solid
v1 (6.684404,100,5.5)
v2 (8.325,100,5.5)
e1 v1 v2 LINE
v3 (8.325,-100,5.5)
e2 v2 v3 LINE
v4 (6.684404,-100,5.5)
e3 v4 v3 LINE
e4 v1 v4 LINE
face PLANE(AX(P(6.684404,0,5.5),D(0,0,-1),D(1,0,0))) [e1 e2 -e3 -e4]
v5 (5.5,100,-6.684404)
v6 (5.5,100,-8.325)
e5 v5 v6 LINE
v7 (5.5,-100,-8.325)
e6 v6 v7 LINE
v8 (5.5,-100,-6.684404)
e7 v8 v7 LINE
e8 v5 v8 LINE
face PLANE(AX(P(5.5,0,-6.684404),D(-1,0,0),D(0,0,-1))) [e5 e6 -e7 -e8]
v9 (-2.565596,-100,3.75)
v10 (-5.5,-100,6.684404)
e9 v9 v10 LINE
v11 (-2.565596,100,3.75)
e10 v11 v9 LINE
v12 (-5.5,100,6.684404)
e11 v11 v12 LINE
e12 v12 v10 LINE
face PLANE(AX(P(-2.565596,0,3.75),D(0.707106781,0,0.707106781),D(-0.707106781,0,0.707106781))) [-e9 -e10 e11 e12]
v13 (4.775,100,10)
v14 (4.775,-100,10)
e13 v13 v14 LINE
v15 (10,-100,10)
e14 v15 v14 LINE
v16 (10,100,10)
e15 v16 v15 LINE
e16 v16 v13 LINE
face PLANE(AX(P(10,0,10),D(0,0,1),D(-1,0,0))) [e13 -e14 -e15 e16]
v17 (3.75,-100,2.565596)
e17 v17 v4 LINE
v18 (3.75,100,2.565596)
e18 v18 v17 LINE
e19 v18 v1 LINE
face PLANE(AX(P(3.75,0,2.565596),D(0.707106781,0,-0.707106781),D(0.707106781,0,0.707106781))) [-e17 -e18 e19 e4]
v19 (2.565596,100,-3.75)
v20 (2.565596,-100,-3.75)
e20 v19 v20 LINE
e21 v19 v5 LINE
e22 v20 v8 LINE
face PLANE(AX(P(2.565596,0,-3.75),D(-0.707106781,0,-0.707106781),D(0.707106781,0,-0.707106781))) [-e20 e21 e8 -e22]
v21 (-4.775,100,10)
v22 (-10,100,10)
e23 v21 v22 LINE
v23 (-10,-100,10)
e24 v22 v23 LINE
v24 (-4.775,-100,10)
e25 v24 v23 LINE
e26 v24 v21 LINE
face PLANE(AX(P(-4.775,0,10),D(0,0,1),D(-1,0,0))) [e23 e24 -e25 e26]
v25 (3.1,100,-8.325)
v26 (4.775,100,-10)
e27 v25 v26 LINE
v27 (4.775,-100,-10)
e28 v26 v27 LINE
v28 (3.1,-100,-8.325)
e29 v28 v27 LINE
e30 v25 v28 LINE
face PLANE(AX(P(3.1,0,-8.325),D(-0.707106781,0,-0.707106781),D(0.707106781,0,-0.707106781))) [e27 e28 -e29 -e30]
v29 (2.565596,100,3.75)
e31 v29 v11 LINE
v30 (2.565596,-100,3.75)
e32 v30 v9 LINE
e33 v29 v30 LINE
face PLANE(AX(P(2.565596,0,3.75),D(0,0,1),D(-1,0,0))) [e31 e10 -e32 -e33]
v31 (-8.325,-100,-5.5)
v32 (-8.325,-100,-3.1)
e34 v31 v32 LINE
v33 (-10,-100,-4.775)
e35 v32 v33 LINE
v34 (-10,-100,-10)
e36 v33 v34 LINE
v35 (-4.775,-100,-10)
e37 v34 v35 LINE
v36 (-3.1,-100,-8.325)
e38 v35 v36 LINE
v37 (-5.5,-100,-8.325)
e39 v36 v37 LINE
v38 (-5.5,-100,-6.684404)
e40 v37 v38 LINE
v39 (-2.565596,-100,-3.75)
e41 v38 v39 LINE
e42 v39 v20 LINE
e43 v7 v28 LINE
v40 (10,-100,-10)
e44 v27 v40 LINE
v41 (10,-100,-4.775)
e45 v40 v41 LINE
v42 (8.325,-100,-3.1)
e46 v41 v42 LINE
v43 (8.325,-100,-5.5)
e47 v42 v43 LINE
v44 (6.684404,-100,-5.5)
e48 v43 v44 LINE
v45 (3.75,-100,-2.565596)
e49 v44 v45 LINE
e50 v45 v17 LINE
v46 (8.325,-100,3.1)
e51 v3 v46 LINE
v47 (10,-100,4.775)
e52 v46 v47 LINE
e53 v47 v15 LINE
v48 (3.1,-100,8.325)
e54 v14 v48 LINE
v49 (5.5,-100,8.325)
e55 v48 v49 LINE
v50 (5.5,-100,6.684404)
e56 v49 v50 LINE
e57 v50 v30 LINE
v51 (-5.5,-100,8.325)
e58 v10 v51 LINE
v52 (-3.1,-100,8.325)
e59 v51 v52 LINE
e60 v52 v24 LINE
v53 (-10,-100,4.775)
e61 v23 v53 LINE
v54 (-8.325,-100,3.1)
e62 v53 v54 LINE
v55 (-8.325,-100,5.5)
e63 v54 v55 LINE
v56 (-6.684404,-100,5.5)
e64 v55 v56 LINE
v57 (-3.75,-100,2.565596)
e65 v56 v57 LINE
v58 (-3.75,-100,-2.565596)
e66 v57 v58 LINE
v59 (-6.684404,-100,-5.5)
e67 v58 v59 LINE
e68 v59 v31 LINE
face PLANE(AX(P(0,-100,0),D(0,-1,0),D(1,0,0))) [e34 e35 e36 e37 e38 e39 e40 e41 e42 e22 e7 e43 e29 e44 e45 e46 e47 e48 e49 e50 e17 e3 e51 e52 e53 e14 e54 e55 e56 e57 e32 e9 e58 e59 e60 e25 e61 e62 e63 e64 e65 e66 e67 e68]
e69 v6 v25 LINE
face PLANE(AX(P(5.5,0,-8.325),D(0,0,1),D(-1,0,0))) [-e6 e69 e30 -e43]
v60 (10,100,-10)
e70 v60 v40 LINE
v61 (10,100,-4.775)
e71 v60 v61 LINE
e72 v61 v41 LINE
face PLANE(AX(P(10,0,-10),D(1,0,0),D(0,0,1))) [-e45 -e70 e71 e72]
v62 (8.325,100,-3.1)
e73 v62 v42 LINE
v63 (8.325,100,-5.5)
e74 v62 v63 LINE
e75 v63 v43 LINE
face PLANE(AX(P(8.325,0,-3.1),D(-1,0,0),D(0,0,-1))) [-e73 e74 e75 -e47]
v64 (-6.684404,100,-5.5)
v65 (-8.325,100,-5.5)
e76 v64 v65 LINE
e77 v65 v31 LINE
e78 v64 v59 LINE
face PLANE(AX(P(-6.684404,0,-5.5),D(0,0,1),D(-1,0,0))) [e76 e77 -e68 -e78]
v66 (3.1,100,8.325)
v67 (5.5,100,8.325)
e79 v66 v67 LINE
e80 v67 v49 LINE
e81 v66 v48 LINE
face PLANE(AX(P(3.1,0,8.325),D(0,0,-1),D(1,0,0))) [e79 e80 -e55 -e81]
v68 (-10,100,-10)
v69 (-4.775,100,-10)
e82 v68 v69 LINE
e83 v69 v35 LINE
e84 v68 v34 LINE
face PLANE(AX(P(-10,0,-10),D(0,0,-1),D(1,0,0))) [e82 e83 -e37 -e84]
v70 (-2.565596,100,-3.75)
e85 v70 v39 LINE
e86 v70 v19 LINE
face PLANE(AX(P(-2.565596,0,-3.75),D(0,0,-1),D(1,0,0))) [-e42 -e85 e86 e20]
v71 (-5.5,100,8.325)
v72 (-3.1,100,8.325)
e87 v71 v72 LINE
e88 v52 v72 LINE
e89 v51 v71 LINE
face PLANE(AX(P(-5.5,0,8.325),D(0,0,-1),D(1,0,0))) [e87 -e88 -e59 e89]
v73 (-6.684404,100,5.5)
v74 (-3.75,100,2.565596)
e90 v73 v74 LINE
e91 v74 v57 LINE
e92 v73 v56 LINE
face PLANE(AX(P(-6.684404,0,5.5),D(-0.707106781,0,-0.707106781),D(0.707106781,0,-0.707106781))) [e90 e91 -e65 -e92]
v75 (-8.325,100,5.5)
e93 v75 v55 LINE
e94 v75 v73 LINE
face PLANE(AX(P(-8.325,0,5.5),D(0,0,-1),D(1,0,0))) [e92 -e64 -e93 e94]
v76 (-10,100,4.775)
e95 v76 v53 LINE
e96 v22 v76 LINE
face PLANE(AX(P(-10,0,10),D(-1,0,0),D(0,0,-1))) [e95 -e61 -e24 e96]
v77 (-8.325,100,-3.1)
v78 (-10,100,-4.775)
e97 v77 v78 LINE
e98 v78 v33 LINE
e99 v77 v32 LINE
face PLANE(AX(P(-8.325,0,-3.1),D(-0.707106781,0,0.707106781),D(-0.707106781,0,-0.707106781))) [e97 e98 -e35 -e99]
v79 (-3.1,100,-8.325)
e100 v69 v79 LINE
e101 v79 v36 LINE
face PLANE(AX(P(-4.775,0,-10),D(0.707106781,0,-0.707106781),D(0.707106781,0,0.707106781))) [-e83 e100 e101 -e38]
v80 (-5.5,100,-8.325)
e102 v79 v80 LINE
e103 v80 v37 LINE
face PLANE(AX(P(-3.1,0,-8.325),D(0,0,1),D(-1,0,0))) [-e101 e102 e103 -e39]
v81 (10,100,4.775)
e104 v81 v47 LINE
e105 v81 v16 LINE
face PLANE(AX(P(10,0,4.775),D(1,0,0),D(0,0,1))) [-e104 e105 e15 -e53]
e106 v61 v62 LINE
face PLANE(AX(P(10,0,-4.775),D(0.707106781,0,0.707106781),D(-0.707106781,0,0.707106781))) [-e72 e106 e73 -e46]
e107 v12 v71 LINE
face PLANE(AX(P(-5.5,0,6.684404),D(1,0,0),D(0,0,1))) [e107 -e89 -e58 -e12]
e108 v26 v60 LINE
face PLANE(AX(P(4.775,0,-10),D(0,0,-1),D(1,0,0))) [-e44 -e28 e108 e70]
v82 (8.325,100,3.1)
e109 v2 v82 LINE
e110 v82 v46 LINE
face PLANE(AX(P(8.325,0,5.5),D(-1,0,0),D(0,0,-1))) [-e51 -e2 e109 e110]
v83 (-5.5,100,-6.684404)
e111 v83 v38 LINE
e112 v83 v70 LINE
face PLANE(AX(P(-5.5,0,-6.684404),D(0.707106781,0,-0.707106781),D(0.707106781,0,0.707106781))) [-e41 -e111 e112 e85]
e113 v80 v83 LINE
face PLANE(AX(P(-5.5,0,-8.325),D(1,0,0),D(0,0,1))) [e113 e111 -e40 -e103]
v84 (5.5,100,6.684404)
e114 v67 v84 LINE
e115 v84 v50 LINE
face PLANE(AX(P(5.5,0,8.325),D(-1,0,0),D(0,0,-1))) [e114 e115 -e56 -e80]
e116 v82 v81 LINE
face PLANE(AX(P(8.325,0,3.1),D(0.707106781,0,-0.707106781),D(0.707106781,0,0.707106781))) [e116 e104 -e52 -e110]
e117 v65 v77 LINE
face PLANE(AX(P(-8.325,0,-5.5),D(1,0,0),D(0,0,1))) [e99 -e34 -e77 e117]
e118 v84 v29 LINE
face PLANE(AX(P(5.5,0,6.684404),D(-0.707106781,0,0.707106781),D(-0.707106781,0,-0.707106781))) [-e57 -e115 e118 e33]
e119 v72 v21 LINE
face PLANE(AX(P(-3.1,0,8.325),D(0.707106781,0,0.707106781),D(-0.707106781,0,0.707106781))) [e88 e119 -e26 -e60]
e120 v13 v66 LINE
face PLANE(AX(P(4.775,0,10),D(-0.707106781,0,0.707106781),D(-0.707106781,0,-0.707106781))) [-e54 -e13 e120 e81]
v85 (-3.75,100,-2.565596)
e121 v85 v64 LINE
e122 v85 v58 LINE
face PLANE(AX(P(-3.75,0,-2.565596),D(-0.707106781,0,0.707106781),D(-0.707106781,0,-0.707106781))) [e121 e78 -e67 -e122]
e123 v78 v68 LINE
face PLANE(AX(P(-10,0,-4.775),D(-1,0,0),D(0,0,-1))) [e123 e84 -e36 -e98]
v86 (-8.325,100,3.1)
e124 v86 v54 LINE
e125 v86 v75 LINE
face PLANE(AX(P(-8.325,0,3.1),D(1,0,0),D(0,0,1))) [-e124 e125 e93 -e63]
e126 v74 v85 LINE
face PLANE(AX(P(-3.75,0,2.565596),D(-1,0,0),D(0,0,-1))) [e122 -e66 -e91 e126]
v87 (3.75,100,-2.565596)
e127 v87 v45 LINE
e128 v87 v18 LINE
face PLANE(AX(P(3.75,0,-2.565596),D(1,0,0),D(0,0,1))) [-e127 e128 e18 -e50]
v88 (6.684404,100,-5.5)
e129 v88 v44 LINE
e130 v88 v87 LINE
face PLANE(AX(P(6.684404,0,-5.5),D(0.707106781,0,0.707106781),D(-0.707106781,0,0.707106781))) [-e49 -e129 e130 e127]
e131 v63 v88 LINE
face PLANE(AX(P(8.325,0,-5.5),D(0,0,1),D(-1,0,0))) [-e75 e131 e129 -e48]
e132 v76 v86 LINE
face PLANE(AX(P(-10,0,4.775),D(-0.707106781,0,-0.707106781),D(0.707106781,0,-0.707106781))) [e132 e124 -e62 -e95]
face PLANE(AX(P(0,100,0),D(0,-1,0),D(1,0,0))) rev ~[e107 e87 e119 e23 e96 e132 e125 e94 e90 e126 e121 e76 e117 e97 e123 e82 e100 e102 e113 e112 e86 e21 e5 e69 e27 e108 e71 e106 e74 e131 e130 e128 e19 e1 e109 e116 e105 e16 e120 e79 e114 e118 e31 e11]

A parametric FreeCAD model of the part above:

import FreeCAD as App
import Part
import Sketcher
Q = App.Units.Quantity

doc = App.newDocument("Part")
body = doc.addObject("PartDesign::Body", "Body")

sketch1 = body.newObject("Sketcher::SketchObject", "Sketch")
sketch1.AttachmentSupport = (doc.getObject("XZ_Plane"), [""])
sketch1.MapMode = "FlatFace"
sketch1.addGeometry(Part.LineSegment(App.Vector(-4.775, 10, 0), App.Vector(-10, 10, 0)), False)
sketch1.addGeometry(Part.LineSegment(App.Vector(-10, 10, 0), App.Vector(-10, 4.775, 0)), False)
sketch1.addGeometry(Part.LineSegment(App.Vector(-10, 4.775, 0), App.Vector(-8.325, 3.1, 0)), False)
sketch1.addGeometry(Part.LineSegment(App.Vector(-8.325, 3.1, 0), App.Vector(-8.325, 5.5, 0)), False)
sketch1.addGeometry(Part.LineSegment(App.Vector(-8.325, 5.5, 0), App.Vector(-6.684404, 5.5, 0)), False)
sketch1.addGeometry(Part.LineSegment(App.Vector(-6.684404, 5.5, 0), App.Vector(-3.75, 2.565596, 0)), False)
sketch1.addGeometry(Part.LineSegment(App.Vector(-3.75, 2.565596, 0), App.Vector(-3.75, -2.565596, 0)), False)
sketch1.addGeometry(Part.LineSegment(App.Vector(-3.75, -2.565596, 0), App.Vector(-6.684404, -5.5, 0)), False)
sketch1.addGeometry(Part.LineSegment(App.Vector(-6.684404, -5.5, 0), App.Vector(-8.325, -5.5, 0)), False)
sketch1.addGeometry(Part.LineSegment(App.Vector(-8.325, -5.5, 0), App.Vector(-8.325, -3.1, 0)), False)
sketch1.addGeometry(Part.LineSegment(App.Vector(-8.325, -3.1, 0), App.Vector(-10, -4.775, 0)), False)
sketch1.addGeometry(Part.LineSegment(App.Vector(-10, -4.775, 0), App.Vector(-10, -10, 0)), False)
sketch1.addGeometry(Part.LineSegment(App.Vector(-10, -10, 0), App.Vector(-4.775, -10, 0)), False)
sketch1.addGeometry(Part.LineSegment(App.Vector(-4.775, -10, 0), App.Vector(-3.1, -8.325, 0)), False)
sketch1.addGeometry(Part.LineSegment(App.Vector(-3.1, -8.325, 0), App.Vector(-5.5, -8.325, 0)), False)
sketch1.addGeometry(Part.LineSegment(App.Vector(-5.5, -8.325, 0), App.Vector(-5.5, -6.684404, 0)), False)
sketch1.addGeometry(Part.LineSegment(App.Vector(-5.5, -6.684404, 0), App.Vector(-2.565596, -3.75, 0)), False)
sketch1.addGeometry(Part.LineSegment(App.Vector(-2.565596, -3.75, 0), App.Vector(2.565596, -3.75, 0)), False)
sketch1.addGeometry(Part.LineSegment(App.Vector(2.565596, -3.75, 0), App.Vector(5.5, -6.684404, 0)), False)
sketch1.addGeometry(Part.LineSegment(App.Vector(5.5, -6.684404, 0), App.Vector(5.5, -8.325, 0)), False)
sketch1.addGeometry(Part.LineSegment(App.Vector(5.5, -8.325, 0), App.Vector(3.1, -8.325, 0)), False)
sketch1.addGeometry(Part.LineSegment(App.Vector(3.1, -8.325, 0), App.Vector(4.775, -10, 0)), False)
sketch1.addGeometry(Part.LineSegment(App.Vector(4.775, -10, 0), App.Vector(10, -10, 0)), False)
sketch1.addGeometry(Part.LineSegment(App.Vector(10, -10, 0), App.Vector(10, -4.775, 0)), False)
sketch1.addGeometry(Part.LineSegment(App.Vector(10, -4.775, 0), App.Vector(8.325, -3.1, 0)), False)
sketch1.addGeometry(Part.LineSegment(App.Vector(8.325, -3.1, 0), App.Vector(8.325, -5.5, 0)), False)
sketch1.addGeometry(Part.LineSegment(App.Vector(8.325, -5.5, 0), App.Vector(6.684404, -5.5, 0)), False)
sketch1.addGeometry(Part.LineSegment(App.Vector(6.684404, -5.5, 0), App.Vector(3.75, -2.565596, 0)), False)
sketch1.addGeometry(Part.LineSegment(App.Vector(3.75, -2.565596, 0), App.Vector(3.75, 2.565596, 0)), False)
sketch1.addGeometry(Part.LineSegment(App.Vector(3.75, 2.565596, 0), App.Vector(6.684404, 5.5, 0)), False)
sketch1.addGeometry(Part.LineSegment(App.Vector(6.684404, 5.5, 0), App.Vector(8.325, 5.5, 0)), False)
sketch1.addGeometry(Part.LineSegment(App.Vector(8.325, 5.5, 0), App.Vector(8.325, 3.1, 0)), False)
sketch1.addGeometry(Part.LineSegment(App.Vector(8.325, 3.1, 0), App.Vector(10, 4.775, 0)), False)
sketch1.addGeometry(Part.LineSegment(App.Vector(10, 4.775, 0), App.Vector(10, 10, 0)), False)
sketch1.addGeometry(Part.LineSegment(App.Vector(10, 10, 0), App.Vector(4.775, 10, 0)), False)
sketch1.addGeometry(Part.LineSegment(App.Vector(4.775, 10, 0), App.Vector(3.1, 8.325, 0)), False)
sketch1.addGeometry(Part.LineSegment(App.Vector(3.1, 8.325, 0), App.Vector(5.5, 8.325, 0)), False)
sketch1.addGeometry(Part.LineSegment(App.Vector(5.5, 8.325, 0), App.Vector(5.5, 6.684404, 0)), False)
sketch1.addGeometry(Part.LineSegment(App.Vector(5.5, 6.684404, 0), App.Vector(2.565596, 3.75, 0)), False)
sketch1.addGeometry(Part.LineSegment(App.Vector(2.565596, 3.75, 0), App.Vector(-2.565596, 3.75, 0)), False)
sketch1.addGeometry(Part.LineSegment(App.Vector(-2.565596, 3.75, 0), App.Vector(-5.5, 6.684404, 0)), False)
sketch1.addGeometry(Part.LineSegment(App.Vector(-5.5, 6.684404, 0), App.Vector(-5.5, 8.325, 0)), False)
sketch1.addGeometry(Part.LineSegment(App.Vector(-5.5, 8.325, 0), App.Vector(-3.1, 8.325, 0)), False)
sketch1.addGeometry(Part.LineSegment(App.Vector(-3.1, 8.325, 0), App.Vector(-4.775, 10, 0)), False)
sketch1.addConstraint(Sketcher.Constraint("Coincident", 0, 2, 1, 1))
sketch1.addConstraint(Sketcher.Constraint("Coincident", 1, 2, 2, 1))
sketch1.addConstraint(Sketcher.Constraint("Coincident", 2, 2, 3, 1))
sketch1.addConstraint(Sketcher.Constraint("Coincident", 3, 2, 4, 1))
sketch1.addConstraint(Sketcher.Constraint("Coincident", 4, 2, 5, 1))
sketch1.addConstraint(Sketcher.Constraint("Coincident", 5, 2, 6, 1))
sketch1.addConstraint(Sketcher.Constraint("Coincident", 6, 2, 7, 1))
sketch1.addConstraint(Sketcher.Constraint("Coincident", 7, 2, 8, 1))
sketch1.addConstraint(Sketcher.Constraint("Coincident", 8, 2, 9, 1))
sketch1.addConstraint(Sketcher.Constraint("Coincident", 9, 2, 10, 1))
sketch1.addConstraint(Sketcher.Constraint("Coincident", 10, 2, 11, 1))
sketch1.addConstraint(Sketcher.Constraint("Coincident", 11, 2, 12, 1))
sketch1.addConstraint(Sketcher.Constraint("Coincident", 12, 2, 13, 1))
sketch1.addConstraint(Sketcher.Constraint("Coincident", 13, 2, 14, 1))
sketch1.addConstraint(Sketcher.Constraint("Coincident", 14, 2, 15, 1))
sketch1.addConstraint(Sketcher.Constraint("Coincident", 15, 2, 16, 1))
sketch1.addConstraint(Sketcher.Constraint("Coincident", 16, 2, 17, 1))
sketch1.addConstraint(Sketcher.Constraint("Coincident", 17, 2, 18, 1))
sketch1.addConstraint(Sketcher.Constraint("Coincident", 18, 2, 19, 1))
sketch1.addConstraint(Sketcher.Constraint("Coincident", 19, 2, 20, 1))
sketch1.addConstraint(Sketcher.Constraint("Coincident", 20, 2, 21, 1))
sketch1.addConstraint(Sketcher.Constraint("Coincident", 21, 2, 22, 1))
sketch1.addConstraint(Sketcher.Constraint("Coincident", 22, 2, 23, 1))
sketch1.addConstraint(Sketcher.Constraint("Coincident", 23, 2, 24, 1))
sketch1.addConstraint(Sketcher.Constraint("Coincident", 24, 2, 25, 1))
sketch1.addConstraint(Sketcher.Constraint("Coincident", 25, 2, 26, 1))
sketch1.addConstraint(Sketcher.Constraint("Coincident", 26, 2, 27, 1))
sketch1.addConstraint(Sketcher.Constraint("Coincident", 27, 2, 28, 1))
sketch1.addConstraint(Sketcher.Constraint("Coincident", 28, 2, 29, 1))
sketch1.addConstraint(Sketcher.Constraint("Coincident", 29, 2, 30, 1))
sketch1.addConstraint(Sketcher.Constraint("Coincident", 30, 2, 31, 1))
sketch1.addConstraint(Sketcher.Constraint("Coincident", 31, 2, 32, 1))
sketch1.addConstraint(Sketcher.Constraint("Coincident", 32, 2, 33, 1))
sketch1.addConstraint(Sketcher.Constraint("Coincident", 33, 2, 34, 1))
sketch1.addConstraint(Sketcher.Constraint("Coincident", 34, 2, 35, 1))
sketch1.addConstraint(Sketcher.Constraint("Coincident", 35, 2, 36, 1))
sketch1.addConstraint(Sketcher.Constraint("Coincident", 36, 2, 37, 1))
sketch1.addConstraint(Sketcher.Constraint("Coincident", 37, 2, 38, 1))
sketch1.addConstraint(Sketcher.Constraint("Coincident", 38, 2, 39, 1))
sketch1.addConstraint(Sketcher.Constraint("Coincident", 39, 2, 40, 1))
sketch1.addConstraint(Sketcher.Constraint("Coincident", 40, 2, 41, 1))
sketch1.addConstraint(Sketcher.Constraint("Coincident", 41, 2, 42, 1))
sketch1.addConstraint(Sketcher.Constraint("Coincident", 42, 2, 43, 1))
sketch1.addConstraint(Sketcher.Constraint("Coincident", 43, 2, 0, 1))
sketch1.addConstraint(Sketcher.Constraint("Horizontal", 0))
sketch1.addConstraint(Sketcher.Constraint("Vertical", 1))
sketch1.addConstraint(Sketcher.Constraint("Vertical", 3))
sketch1.addConstraint(Sketcher.Constraint("Horizontal", 4))
sketch1.addConstraint(Sketcher.Constraint("Vertical", 6))
sketch1.addConstraint(Sketcher.Constraint("Horizontal", 8))
sketch1.addConstraint(Sketcher.Constraint("Vertical", 9))
sketch1.addConstraint(Sketcher.Constraint("Vertical", 11))
sketch1.addConstraint(Sketcher.Constraint("Horizontal", 12))
sketch1.addConstraint(Sketcher.Constraint("Horizontal", 14))
sketch1.addConstraint(Sketcher.Constraint("Vertical", 15))
sketch1.addConstraint(Sketcher.Constraint("Horizontal", 17))
sketch1.addConstraint(Sketcher.Constraint("Vertical", 19))
sketch1.addConstraint(Sketcher.Constraint("Horizontal", 20))
sketch1.addConstraint(Sketcher.Constraint("Horizontal", 22))
sketch1.addConstraint(Sketcher.Constraint("Vertical", 23))
sketch1.addConstraint(Sketcher.Constraint("Vertical", 25))
sketch1.addConstraint(Sketcher.Constraint("Horizontal", 26))
sketch1.addConstraint(Sketcher.Constraint("Vertical", 28))
sketch1.addConstraint(Sketcher.Constraint("Horizontal", 30))
sketch1.addConstraint(Sketcher.Constraint("Vertical", 31))
sketch1.addConstraint(Sketcher.Constraint("Vertical", 33))
sketch1.addConstraint(Sketcher.Constraint("Horizontal", 34))
sketch1.addConstraint(Sketcher.Constraint("Horizontal", 36))
sketch1.addConstraint(Sketcher.Constraint("Vertical", 37))
sketch1.addConstraint(Sketcher.Constraint("Horizontal", 39))
sketch1.addConstraint(Sketcher.Constraint("Vertical", 41))
sketch1.addConstraint(Sketcher.Constraint("Horizontal", 42))
sketch1.addConstraint(Sketcher.Constraint("Symmetric", 0, 2, 22, 2, -1, 1))
sketch1.addConstraint(Sketcher.Constraint("Symmetric", 2, 2, 24, 2, -1, 1))
sketch1.addConstraint(Sketcher.Constraint("Symmetric", 4, 2, 26, 2, -1, 1))
sketch1.addConstraint(Sketcher.Constraint("Symmetric", 5, 2, 27, 2, -1, 1))
sketch1.addConstraint(Sketcher.Constraint("Symmetric", 7, 2, 29, 2, -1, 1))
sketch1.addConstraint(Sketcher.Constraint("Symmetric", 9, 2, 31, 2, -1, 1))
sketch1.addConstraint(Sketcher.Constraint("Symmetric", 10, 2, 32, 2, -1, 1))
sketch1.addConstraint(Sketcher.Constraint("Symmetric", 12, 2, 34, 2, -1, 1))
sketch1.addConstraint(Sketcher.Constraint("Symmetric", 13, 2, 35, 2, -1, 1))
sketch1.addConstraint(Sketcher.Constraint("Symmetric", 15, 2, 37, 2, -1, 1))
sketch1.addConstraint(Sketcher.Constraint("Symmetric", 16, 2, 38, 2, -1, 1))
sketch1.addConstraint(Sketcher.Constraint("Symmetric", 18, 2, 40, 2, -1, 1))
sketch1.addConstraint(Sketcher.Constraint("Symmetric", 20, 2, 42, 2, -1, 1))
sketch1.addConstraint(Sketcher.Constraint("Symmetric", 15, 2, 18, 2, -2))
sketch1.addConstraint(Sketcher.Constraint("Symmetric", 13, 2, 20, 2, -2))
sketch1.addConstraint(Sketcher.Constraint("Symmetric", 12, 2, 21, 2, -2))
sketch1.addConstraint(Sketcher.Constraint("Symmetric", 10, 2, 23, 2, -2))
sketch1.addConstraint(Sketcher.Constraint("Symmetric", 9, 2, 24, 2, -2))
sketch1.addConstraint(Sketcher.Constraint("Symmetric", 7, 2, 26, 2, -2))
sketch1.addConstraint(Sketcher.Constraint("Parallel", 2, 5))
sketch1.addConstraint(Sketcher.Constraint("Perpendicular", 5, 7))
sketch1.addConstraint(Sketcher.Constraint("Parallel", 7, 10))
sketch1.addConstraint(Sketcher.Constraint("Parallel", 10, 13))
sketch1.addConstraint(Sketcher.Constraint("Parallel", 13, 16))
sketch1.addConstraint(Sketcher.Constraint("Perpendicular", 16, 18))
sketch1.addConstraint(Sketcher.Constraint("Parallel", 18, 21))
sketch1.addConstraint(Sketcher.Constraint("Perpendicular", 27, 29))
sketch1.addConstraint(Sketcher.Constraint("Perpendicular", 38, 40))
sketch1.addConstraint(Sketcher.Constraint("Parallel", 40, 43))
sketch1.addConstraint(Sketcher.Constraint("Equal", 34, 1))
sketch1.addConstraint(Sketcher.Constraint("Equal", 42, 3))
sketch1.addConstraint(Sketcher.Constraint("Equal", 39, 6))
sketch1.addConstraint(Sketcher.Constraint("Equal", 30, 15))
sketch1.addConstraint(Sketcher.Constraint("Equal", 10, 13))
sketch1.addConstraint(Sketcher.Constraint("Equal", 7, 16))
sketch1.addConstraint(Sketcher.Constraint("DistanceX", 14, 2, 14, 1, Q("2.4 mm")))
sketch1.addConstraint(Sketcher.Constraint("DistanceX", 0, 2, -1, 1, Q("10 mm")))
sketch1.addConstraint(Sketcher.Constraint("DistanceY", 7, 2, 4, 2, Q("11 mm")))
sketch1.addConstraint(Sketcher.Constraint("DistanceX", 5, 2, 28, 2, Q("7.5 mm")))
sketch1.addConstraint(Sketcher.Constraint("DistanceX", 0, 2, 0, 1, Q("5.225 mm")))
sketch1.addConstraint(Sketcher.Constraint("DistanceX", 4, 1, 4, 2, Q("1.640596 mm")))
pad1 = body.newObject("PartDesign::Pad", "Pad")
pad1.Profile = sketch1
pad1.Length = 200
pad1.Midplane = True

doc.recompute()
